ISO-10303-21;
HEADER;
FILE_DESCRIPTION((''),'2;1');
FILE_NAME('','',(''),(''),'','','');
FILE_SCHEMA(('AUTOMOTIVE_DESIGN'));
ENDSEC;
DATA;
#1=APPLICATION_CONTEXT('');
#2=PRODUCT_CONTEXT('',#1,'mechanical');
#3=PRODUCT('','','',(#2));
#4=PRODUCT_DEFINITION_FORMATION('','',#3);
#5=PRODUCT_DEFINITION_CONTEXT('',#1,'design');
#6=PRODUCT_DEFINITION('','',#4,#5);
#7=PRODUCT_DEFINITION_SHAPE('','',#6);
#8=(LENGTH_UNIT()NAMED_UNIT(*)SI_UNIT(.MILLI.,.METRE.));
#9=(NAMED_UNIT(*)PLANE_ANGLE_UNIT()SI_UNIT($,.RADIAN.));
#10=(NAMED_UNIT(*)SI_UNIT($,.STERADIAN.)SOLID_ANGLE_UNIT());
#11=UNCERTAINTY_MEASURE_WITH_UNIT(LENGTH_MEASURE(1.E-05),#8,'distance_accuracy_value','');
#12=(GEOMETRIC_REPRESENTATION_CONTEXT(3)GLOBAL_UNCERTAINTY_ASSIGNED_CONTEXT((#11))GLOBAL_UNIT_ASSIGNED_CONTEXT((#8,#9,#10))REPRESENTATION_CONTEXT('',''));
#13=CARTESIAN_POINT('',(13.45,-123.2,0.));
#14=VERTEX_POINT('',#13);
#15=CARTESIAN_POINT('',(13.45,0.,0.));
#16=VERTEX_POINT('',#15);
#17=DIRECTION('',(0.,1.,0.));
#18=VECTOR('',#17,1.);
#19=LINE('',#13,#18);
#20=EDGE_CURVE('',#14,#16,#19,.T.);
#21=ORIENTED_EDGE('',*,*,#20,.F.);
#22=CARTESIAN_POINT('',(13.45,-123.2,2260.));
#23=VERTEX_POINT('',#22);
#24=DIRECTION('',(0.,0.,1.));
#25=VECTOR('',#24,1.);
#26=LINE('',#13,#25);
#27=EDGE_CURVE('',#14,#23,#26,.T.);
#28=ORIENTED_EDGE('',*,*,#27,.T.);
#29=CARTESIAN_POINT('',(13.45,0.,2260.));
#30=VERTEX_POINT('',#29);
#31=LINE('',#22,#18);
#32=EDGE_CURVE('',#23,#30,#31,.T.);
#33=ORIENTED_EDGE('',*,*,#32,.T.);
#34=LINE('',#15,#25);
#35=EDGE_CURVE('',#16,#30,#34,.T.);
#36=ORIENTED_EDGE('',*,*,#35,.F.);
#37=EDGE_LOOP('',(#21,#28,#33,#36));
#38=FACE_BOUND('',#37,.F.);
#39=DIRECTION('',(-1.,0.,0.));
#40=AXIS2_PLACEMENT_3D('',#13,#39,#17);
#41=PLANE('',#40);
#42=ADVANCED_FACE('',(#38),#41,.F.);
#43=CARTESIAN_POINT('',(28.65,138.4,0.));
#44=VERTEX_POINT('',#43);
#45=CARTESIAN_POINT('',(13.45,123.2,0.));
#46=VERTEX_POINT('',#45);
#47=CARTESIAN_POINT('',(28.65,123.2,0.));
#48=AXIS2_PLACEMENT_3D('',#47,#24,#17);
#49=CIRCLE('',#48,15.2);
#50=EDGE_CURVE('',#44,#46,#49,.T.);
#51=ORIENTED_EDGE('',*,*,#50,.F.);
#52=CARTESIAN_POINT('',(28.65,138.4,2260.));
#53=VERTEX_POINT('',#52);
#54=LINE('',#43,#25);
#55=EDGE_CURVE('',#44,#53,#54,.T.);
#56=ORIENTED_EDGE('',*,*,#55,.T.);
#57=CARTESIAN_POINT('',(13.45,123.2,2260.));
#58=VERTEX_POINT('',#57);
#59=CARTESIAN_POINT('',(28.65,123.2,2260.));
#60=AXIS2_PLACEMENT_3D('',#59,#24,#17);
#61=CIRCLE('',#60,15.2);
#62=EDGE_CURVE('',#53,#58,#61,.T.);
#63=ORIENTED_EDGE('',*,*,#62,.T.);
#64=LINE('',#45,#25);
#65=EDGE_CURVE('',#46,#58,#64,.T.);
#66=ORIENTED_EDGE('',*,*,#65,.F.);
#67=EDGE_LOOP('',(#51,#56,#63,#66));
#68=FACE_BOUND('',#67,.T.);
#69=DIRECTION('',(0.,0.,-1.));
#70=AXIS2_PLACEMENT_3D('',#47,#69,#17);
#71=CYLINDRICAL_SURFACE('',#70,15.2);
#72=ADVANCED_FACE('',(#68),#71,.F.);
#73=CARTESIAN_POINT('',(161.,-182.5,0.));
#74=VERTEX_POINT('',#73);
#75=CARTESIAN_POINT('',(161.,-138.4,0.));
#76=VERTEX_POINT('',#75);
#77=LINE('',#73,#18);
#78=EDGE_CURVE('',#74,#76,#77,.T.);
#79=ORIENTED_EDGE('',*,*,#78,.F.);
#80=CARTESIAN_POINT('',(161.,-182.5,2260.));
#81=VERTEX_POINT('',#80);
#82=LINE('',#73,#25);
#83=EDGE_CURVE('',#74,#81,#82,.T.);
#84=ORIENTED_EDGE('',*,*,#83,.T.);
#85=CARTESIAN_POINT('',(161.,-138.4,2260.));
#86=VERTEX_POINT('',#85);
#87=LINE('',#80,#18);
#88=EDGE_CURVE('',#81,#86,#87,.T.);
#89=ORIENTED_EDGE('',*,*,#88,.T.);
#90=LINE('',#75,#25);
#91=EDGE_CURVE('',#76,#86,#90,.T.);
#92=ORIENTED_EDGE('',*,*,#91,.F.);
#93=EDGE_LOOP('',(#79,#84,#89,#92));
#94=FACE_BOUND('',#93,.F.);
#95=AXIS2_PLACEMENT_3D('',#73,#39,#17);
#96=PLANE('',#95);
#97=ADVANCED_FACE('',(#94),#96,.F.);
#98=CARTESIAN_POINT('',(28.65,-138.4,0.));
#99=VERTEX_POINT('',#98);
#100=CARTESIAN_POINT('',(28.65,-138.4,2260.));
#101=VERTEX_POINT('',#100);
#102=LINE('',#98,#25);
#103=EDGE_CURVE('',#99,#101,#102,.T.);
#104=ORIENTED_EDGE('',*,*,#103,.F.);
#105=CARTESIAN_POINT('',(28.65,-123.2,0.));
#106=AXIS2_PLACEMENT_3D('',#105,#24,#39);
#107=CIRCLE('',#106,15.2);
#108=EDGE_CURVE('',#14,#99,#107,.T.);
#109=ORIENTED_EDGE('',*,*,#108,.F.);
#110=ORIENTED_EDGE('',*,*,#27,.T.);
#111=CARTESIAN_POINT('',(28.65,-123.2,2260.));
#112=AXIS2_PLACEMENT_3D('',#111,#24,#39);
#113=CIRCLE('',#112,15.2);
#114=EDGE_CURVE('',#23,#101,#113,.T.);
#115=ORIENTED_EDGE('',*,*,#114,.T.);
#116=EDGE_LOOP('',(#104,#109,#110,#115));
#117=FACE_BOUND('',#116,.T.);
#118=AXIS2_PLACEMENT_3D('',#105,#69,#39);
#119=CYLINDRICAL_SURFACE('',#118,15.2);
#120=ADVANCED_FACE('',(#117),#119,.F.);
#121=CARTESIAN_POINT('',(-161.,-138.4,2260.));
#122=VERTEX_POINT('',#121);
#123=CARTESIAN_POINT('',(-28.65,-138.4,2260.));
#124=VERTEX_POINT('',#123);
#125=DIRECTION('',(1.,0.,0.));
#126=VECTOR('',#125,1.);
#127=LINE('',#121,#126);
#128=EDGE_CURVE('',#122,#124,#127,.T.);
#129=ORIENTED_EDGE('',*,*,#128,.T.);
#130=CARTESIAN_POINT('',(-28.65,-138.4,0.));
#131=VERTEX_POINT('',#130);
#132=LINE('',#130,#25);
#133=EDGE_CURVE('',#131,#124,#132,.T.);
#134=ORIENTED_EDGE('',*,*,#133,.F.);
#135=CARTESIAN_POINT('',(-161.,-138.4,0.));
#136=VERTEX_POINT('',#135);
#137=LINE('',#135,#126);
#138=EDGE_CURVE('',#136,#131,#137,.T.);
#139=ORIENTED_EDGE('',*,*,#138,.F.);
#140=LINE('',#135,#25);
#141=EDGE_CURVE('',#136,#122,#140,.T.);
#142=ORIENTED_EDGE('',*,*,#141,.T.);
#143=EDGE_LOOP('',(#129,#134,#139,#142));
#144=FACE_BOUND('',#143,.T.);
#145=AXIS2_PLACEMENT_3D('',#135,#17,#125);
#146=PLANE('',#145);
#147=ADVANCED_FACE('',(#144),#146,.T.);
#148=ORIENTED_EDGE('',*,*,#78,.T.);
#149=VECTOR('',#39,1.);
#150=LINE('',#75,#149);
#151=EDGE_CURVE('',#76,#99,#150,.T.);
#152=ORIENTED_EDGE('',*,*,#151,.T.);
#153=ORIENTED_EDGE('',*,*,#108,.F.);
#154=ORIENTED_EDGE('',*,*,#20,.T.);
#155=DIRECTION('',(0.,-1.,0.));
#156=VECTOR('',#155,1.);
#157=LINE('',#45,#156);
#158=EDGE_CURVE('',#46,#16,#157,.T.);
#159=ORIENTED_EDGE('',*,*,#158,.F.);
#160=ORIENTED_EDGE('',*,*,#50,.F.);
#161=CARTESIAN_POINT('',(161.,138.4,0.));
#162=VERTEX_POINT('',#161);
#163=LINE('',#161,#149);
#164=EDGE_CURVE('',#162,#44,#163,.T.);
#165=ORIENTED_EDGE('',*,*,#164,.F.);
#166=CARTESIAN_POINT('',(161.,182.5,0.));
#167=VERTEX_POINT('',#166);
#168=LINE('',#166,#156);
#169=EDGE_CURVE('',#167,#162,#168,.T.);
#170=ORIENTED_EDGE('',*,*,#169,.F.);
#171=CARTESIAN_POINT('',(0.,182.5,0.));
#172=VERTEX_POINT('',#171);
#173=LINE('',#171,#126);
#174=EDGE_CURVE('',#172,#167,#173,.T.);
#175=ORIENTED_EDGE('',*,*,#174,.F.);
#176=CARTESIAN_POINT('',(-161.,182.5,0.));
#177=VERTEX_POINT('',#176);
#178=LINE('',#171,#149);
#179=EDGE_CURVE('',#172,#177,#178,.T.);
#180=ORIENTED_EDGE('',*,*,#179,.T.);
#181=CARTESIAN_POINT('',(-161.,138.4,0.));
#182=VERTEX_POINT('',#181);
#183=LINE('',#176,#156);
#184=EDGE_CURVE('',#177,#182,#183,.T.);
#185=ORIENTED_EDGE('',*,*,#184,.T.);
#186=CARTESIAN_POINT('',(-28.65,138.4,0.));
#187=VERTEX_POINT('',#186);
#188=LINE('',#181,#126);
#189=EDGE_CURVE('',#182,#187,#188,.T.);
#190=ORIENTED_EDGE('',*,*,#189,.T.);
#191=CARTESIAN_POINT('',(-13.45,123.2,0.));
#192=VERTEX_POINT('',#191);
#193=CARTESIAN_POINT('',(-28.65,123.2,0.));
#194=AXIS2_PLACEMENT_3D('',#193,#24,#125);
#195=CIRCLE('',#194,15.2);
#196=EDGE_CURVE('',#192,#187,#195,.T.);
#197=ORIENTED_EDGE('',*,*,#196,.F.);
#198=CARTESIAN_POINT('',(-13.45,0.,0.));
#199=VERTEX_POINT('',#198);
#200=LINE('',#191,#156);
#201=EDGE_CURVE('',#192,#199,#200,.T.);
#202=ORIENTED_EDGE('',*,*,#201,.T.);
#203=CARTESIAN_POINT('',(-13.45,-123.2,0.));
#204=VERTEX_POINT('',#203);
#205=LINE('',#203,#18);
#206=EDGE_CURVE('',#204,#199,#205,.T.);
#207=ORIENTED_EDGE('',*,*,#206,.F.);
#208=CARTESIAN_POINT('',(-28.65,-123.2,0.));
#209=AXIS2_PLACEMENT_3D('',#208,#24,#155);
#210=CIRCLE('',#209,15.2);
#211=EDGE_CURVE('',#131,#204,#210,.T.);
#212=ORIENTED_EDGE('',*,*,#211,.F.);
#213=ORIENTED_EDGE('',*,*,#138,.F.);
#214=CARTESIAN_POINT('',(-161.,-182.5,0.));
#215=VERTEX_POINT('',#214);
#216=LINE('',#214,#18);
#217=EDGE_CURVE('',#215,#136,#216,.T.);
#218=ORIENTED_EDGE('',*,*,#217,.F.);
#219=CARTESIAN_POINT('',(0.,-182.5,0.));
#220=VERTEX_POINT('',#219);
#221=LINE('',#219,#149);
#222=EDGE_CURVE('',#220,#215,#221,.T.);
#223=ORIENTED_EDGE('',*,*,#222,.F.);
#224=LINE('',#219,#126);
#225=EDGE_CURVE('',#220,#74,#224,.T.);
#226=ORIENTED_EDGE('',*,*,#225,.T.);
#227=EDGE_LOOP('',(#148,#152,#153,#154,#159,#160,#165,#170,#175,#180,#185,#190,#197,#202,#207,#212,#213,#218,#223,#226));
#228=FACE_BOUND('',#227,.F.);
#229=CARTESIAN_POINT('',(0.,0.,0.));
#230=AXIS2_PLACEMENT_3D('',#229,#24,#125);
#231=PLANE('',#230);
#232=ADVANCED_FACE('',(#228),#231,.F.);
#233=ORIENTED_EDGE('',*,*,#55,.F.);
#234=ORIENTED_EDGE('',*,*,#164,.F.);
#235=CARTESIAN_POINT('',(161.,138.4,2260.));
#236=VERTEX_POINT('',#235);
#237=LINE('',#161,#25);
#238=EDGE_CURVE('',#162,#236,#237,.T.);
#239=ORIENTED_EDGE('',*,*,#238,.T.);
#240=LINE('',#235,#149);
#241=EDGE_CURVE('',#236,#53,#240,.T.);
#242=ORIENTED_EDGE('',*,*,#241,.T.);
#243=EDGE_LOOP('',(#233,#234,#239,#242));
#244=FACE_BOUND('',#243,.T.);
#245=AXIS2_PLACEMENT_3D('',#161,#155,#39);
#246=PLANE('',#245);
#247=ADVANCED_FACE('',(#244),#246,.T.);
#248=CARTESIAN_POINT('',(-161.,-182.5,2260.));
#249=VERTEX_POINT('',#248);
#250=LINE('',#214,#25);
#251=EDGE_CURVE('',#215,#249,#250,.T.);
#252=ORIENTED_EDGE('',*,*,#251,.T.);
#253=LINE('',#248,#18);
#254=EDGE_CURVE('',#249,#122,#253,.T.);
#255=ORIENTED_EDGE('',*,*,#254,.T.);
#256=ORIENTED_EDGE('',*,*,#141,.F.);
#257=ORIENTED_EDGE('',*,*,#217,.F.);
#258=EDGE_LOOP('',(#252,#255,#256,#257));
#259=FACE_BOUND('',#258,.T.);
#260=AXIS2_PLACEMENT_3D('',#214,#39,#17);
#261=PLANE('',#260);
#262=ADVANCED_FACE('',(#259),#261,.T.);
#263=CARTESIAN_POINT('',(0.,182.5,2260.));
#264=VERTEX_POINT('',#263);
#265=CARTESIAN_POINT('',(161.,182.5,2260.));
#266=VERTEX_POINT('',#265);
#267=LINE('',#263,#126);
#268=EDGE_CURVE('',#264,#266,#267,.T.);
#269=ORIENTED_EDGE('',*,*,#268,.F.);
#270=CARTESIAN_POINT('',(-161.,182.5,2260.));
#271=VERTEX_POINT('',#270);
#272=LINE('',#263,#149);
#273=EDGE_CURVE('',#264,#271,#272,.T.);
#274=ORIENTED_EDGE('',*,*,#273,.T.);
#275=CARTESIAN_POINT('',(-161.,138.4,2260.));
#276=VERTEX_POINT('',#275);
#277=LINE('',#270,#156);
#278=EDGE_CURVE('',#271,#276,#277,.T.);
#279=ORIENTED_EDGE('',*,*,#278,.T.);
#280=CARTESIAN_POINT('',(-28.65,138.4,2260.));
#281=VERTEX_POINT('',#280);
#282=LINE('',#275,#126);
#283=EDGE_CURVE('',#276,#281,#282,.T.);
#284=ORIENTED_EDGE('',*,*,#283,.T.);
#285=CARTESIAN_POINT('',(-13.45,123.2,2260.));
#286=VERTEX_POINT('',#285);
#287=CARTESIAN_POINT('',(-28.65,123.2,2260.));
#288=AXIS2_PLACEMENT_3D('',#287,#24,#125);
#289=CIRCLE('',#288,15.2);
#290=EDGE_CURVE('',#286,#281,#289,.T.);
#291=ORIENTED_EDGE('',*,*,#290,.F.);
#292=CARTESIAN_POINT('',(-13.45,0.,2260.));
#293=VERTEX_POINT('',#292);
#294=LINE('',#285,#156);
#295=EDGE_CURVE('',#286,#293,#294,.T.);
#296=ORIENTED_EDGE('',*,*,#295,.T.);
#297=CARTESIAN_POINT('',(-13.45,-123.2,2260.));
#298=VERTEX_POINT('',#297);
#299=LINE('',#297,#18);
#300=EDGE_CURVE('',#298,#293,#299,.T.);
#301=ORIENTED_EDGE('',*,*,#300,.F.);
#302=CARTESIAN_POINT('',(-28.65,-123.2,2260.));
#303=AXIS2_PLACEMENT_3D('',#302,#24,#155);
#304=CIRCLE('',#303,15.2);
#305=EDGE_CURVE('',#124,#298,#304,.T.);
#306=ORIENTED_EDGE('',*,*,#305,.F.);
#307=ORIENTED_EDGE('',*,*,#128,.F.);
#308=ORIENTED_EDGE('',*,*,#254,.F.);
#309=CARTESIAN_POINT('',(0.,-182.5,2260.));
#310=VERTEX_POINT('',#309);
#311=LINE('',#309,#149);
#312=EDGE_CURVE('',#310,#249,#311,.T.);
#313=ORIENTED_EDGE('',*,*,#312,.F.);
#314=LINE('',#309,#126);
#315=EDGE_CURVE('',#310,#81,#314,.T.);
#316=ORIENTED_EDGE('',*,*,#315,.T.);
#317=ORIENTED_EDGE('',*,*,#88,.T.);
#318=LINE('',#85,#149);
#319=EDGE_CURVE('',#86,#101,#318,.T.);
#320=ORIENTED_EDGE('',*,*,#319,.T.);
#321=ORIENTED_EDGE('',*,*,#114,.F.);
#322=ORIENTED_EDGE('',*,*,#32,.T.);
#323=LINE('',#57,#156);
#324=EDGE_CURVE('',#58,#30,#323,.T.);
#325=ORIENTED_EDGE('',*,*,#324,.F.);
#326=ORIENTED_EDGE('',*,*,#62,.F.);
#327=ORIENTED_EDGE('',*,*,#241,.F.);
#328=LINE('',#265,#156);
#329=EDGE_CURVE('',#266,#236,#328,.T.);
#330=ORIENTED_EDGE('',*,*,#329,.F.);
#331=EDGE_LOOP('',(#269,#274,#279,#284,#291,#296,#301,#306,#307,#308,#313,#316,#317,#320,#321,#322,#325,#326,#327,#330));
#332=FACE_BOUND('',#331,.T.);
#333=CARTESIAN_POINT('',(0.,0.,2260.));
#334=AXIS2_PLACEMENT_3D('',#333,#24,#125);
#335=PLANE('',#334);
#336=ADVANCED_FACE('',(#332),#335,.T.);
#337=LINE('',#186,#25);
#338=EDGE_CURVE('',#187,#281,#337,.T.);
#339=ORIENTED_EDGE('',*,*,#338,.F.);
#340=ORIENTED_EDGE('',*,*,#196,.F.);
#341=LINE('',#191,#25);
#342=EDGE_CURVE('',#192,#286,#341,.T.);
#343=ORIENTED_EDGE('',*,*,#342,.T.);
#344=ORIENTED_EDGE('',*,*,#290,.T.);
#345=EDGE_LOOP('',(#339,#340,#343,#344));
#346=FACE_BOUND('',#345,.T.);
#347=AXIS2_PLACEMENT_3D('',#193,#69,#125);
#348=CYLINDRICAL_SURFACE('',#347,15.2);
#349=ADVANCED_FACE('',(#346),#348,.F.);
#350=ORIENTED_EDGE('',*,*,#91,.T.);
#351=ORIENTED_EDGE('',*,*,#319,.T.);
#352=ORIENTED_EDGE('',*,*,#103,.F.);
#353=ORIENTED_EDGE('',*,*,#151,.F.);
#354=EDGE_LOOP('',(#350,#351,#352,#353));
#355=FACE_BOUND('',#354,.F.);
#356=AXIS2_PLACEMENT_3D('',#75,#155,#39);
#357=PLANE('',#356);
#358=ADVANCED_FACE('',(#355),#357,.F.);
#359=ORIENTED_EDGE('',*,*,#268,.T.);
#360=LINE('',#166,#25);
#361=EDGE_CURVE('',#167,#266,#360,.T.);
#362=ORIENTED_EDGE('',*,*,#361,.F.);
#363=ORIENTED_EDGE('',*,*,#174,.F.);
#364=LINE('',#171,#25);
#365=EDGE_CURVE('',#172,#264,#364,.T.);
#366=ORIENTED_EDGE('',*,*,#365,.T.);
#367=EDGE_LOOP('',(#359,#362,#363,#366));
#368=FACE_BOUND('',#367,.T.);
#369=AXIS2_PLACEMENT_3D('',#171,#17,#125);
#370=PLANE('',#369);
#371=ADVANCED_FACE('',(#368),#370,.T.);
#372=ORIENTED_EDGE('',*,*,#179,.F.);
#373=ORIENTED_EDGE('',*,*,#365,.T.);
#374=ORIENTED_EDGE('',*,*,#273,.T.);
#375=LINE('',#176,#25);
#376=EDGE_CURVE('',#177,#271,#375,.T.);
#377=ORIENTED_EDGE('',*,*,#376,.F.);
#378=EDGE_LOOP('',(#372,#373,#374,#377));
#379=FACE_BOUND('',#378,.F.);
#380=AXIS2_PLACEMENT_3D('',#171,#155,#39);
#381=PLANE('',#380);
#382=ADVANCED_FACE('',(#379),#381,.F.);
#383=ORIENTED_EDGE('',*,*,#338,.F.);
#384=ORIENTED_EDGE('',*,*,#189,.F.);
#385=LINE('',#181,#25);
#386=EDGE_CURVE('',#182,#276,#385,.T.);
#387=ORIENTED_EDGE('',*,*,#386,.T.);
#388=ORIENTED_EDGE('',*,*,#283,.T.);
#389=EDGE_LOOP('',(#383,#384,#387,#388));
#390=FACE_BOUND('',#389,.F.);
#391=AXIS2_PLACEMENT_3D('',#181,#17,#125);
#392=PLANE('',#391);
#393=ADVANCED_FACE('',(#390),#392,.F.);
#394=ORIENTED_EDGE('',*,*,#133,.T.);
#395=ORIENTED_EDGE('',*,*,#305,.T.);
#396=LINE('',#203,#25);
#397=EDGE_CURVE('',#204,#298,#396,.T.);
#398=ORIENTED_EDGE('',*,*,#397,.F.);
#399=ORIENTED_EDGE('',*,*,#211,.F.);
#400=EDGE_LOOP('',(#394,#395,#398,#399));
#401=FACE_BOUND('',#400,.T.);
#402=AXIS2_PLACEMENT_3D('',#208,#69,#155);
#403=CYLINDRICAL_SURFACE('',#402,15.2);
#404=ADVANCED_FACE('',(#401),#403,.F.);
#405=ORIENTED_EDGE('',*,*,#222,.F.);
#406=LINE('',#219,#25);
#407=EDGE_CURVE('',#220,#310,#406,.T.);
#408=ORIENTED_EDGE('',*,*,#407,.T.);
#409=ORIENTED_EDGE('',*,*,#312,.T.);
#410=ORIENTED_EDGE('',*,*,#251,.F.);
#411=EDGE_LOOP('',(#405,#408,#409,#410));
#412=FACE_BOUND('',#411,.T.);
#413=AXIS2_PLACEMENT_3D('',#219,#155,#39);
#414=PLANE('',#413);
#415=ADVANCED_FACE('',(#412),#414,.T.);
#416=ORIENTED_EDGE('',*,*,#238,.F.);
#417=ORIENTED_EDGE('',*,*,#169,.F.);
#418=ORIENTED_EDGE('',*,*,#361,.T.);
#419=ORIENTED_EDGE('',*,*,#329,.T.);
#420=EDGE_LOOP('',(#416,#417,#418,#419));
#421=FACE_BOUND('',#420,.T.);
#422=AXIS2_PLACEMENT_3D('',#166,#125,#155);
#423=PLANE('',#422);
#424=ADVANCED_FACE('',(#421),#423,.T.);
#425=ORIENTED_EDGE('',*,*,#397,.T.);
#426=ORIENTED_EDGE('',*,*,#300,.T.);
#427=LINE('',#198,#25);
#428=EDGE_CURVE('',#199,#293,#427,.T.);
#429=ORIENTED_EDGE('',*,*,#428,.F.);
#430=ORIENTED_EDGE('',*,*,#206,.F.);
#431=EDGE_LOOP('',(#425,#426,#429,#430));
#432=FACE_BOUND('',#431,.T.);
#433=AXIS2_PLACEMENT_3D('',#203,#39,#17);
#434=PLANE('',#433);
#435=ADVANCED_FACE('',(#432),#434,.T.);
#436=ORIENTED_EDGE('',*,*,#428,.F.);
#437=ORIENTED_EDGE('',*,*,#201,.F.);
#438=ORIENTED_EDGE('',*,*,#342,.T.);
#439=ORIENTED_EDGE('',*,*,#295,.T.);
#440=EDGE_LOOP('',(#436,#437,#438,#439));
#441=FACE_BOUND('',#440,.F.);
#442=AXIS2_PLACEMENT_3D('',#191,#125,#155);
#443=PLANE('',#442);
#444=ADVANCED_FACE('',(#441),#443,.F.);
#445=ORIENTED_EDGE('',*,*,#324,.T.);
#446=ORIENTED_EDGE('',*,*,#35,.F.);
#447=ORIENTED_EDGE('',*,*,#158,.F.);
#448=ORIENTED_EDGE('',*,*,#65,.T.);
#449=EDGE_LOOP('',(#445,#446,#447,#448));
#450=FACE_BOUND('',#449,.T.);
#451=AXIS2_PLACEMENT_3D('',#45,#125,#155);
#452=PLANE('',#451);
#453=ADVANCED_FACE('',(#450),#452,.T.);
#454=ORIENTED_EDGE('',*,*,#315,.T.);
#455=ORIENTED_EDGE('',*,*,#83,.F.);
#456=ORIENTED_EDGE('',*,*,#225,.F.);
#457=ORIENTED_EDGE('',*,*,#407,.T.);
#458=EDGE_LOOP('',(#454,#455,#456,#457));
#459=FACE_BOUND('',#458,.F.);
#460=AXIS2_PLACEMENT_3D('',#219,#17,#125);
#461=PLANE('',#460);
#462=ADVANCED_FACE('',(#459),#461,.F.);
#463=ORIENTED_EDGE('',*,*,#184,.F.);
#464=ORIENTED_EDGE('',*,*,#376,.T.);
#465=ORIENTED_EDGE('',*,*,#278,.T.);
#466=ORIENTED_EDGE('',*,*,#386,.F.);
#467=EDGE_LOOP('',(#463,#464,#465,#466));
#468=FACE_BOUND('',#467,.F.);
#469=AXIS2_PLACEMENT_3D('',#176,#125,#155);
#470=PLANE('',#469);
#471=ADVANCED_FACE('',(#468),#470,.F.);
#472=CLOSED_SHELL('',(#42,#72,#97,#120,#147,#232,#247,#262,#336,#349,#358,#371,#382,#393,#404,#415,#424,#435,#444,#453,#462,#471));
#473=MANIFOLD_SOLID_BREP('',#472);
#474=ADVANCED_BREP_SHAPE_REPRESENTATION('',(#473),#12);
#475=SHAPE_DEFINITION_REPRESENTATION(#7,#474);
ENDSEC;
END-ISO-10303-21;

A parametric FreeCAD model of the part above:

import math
import FreeCAD as App
import Part
import Sketcher

V = App.Vector

doc = App.newDocument("Part")
body = doc.addObject("PartDesign::Body", "Body")

# Sketch on XY plane
sketch1 = body.newObject("Sketcher::SketchObject", "Sketch")
sketch1.AttachmentSupport = (doc.getObject("XY_Plane"), [""])
sketch1.MapMode = "FlatFace"
sketch1.addGeometry([
    Part.LineSegment(V(-161, -138, 0), V(-161, -182, 0)),  # 0
    Part.LineSegment(V(-161, -182, 0), V(161, -182, 0)),  # 1
    Part.LineSegment(V(161, -182, 0), V(161, -138, 0)),  # 2
    Part.LineSegment(V(161, -138, 0), V(29, -138, 0)),  # 3
    Part.ArcOfCircle(Part.Circle(V(29, -123, 0), V(0, 0, 1), 15), math.radians(180), math.radians(270)),  # 4
    Part.LineSegment(V(13, -123, 0), V(13, 123, 0)),  # 5
    Part.ArcOfCircle(Part.Circle(V(29, 123, 0), V(0, 0, 1), 15), math.radians(90), math.radians(180)),  # 6
    Part.LineSegment(V(29, 138, 0), V(161, 138, 0)),  # 7
    Part.LineSegment(V(161, 138, 0), V(161, 182, 0)),  # 8
    Part.LineSegment(V(161, 182, 0), V(-161, 182, 0)),  # 9
    Part.LineSegment(V(-161, 182, 0), V(-161, 138, 0)),  # 10
    Part.LineSegment(V(-161, 138, 0), V(-29, 138, 0)),  # 11
    Part.ArcOfCircle(Part.Circle(V(-29, 123, 0), V(0, 0, 1), 15), math.radians(0), math.radians(90)),  # 12
    Part.LineSegment(V(-13, 123, 0), V(-13, -123, 0)),  # 13
    Part.ArcOfCircle(Part.Circle(V(-29, -123, 0), V(0, 0, 1), 15), math.radians(-90), math.radians(0)),  # 14
    Part.LineSegment(V(-29, -138, 0), V(-161, -138, 0)),  # 15
], False)
sketch1.addConstraint([
    Sketcher.Constraint("Coincident", 0, 2, 1, 1),
    Sketcher.Constraint("Coincident", 1, 2, 2, 1),
    Sketcher.Constraint("Coincident", 2, 2, 3, 1),
    Sketcher.Constraint("Tangent", 3, 2, 4, 2),
    Sketcher.Constraint("Tangent", 4, 1, 5, 1),
    Sketcher.Constraint("Tangent", 5, 2, 6, 2),
    Sketcher.Constraint("Tangent", 6, 1, 7, 1),
    Sketcher.Constraint("Coincident", 7, 2, 8, 1),
    Sketcher.Constraint("Coincident", 8, 2, 9, 1),
    Sketcher.Constraint("Coincident", 9, 2, 10, 1),
    Sketcher.Constraint("Coincident", 10, 2, 11, 1),
    Sketcher.Constraint("Tangent", 11, 2, 12, 2),
    Sketcher.Constraint("Tangent", 12, 1, 13, 1),
    Sketcher.Constraint("Tangent", 13, 2, 14, 2),
    Sketcher.Constraint("Tangent", 14, 1, 15, 1),
    Sketcher.Constraint("Coincident", 15, 2, 0, 1),
    Sketcher.Constraint("Vertical", 0),
    Sketcher.Constraint("Horizontal", 1),
    Sketcher.Constraint("Vertical", 2),
    Sketcher.Constraint("Horizontal", 3),
    Sketcher.Constraint("Vertical", 5),
    Sketcher.Constraint("Horizontal", 7),
    Sketcher.Constraint("Vertical", 8),
    Sketcher.Constraint("Horizontal", 9),
    Sketcher.Constraint("Vertical", 10),
    Sketcher.Constraint("Horizontal", 11),
    Sketcher.Constraint("Vertical", 13),
    Sketcher.Constraint("Horizontal", 15),
    Sketcher.Constraint("Equal", 4, 6),
    Sketcher.Constraint("Equal", 6, 12),
    Sketcher.Constraint("Equal", 12, 14),
    Sketcher.Constraint("Symmetric", 4, 3, 12, 3, -1, 1),
    Sketcher.Constraint("Symmetric", 0, 2, 8, 2, -1, 1),
    Sketcher.Constraint("Symmetric", 7, 2, 10, 2, -2),
    Sketcher.Constraint("Symmetric", 2, 2, 15, 2, -2),
    Sketcher.Constraint("Radius", 4, 15.2),
    Sketcher.Constraint("DistanceY", 0, 2, 0, 1, 44.1),
    Sketcher.Constraint("DistanceX", 0, 2, -1, 1, 161.0),
    Sketcher.Constraint("DistanceY", 0, 2, -1, 1, 182.5),
    Sketcher.Constraint("DistanceX", -1, 1, 4, 1, 13.45),
])
pad1 = body.newObject("PartDesign::Pad", "Pad")
pad1.Profile = sketch1
pad1.Length = 2260

doc.recompute()
